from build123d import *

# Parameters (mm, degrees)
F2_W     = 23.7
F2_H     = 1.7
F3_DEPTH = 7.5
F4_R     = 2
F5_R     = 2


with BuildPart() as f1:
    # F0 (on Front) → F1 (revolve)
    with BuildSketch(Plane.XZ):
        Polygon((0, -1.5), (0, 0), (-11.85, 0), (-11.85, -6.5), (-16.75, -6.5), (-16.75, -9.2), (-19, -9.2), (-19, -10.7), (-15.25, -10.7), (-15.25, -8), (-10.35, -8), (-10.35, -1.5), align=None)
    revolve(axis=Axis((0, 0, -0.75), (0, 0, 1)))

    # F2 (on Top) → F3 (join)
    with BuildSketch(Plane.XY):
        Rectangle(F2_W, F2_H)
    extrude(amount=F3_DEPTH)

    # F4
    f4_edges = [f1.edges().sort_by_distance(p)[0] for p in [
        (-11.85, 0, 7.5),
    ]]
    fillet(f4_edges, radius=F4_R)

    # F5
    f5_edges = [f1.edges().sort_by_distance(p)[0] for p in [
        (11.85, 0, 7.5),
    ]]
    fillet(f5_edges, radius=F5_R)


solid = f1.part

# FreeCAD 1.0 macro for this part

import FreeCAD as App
import Part
import Sketcher
from FreeCAD import Vector
Q = App.Units.Quantity


def edges_at(feature, points):
    """Names of the edges that pass closest to the given points."""
    edges = feature.Shape.Edges
    near = lambda p: min(range(len(edges)), key=lambda i: edges[i].distToShape(Part.Vertex(*p))[0])
    return sorted({f"Edge{near(p) + 1}" for p in points})


def add_polygon(sketch, points):
    """Adds a closed chain of lines whose ends are joined by coincident constraints."""
    first, n = sketch.GeometryCount, len(points)
    for a, b in zip(points, points[1:] + points[:1]):
        sketch.addGeometry(Part.LineSegment(App.Vector(*a, 0), App.Vector(*b, 0)), False)
    for i in range(n):
        sketch.addConstraint(Sketcher.Constraint("Coincident", first + i, 2, first + (i + 1) % n, 1))

doc = App.newDocument("Part")
params = doc.addObject("Spreadsheet::Sheet", "Params")
for row, (alias, value) in enumerate([
    ("sketch1_width", "4.9 mm"),
    ("sketch1_height", "1.5 mm"),
    ("sketch1_height2", "6.5 mm"),
    ("sketch1_height3", "2.7 mm"),
    ("sketch1_width2", "11.85 mm"),
    ("revolution_angle", "360 deg"),
    ("sketch2_width", "23.7 mm"),
    ("sketch2_height", "1.7 mm"),
    ("pad1_length", "7.5 mm"),
    ("fillet_radius", "2 mm"),
    ("fillet2_radius", "2 mm"),
], start=1):
    params.set(f"A{row}", alias)
    params.set(f"B{row}", "=" + value)
    params.setAlias(f"B{row}", alias)

body = doc.addObject("PartDesign::Body", "Body")

# Sketch on XZ plane
sketch1 = body.newObject("Sketcher::SketchObject", "Sketch")
sketch1.AttachmentSupport = (doc.getObject("XZ_Plane"), [""])
sketch1.MapMode = "FlatFace"
add_polygon(sketch1, [(0, -1.5), (0, 0), (-11.8, 0), (-11.8, -6.5), (-16.8, -6.5), (-16.8, -9.2), (-19, -9.2), (-19, -10.7), (-15.2, -10.7), (-15.2, -8), (-10.3, -8), (-10.3, -1.5)])  # lines 0-11
sketch1.addConstraint([
    Sketcher.Constraint("Vertical", 0),
    Sketcher.Constraint("Horizontal", 1),
    Sketcher.Constraint("Vertical", 2),
    Sketcher.Constraint("Horizontal", 3),
    Sketcher.Constraint("Vertical", 4),
    Sketcher.Constraint("Horizontal", 5),
    Sketcher.Constraint("Vertical", 6),
    Sketcher.Constraint("Horizontal", 7),
    Sketcher.Constraint("Vertical", 8),
    Sketcher.Constraint("Horizontal", 9),
    Sketcher.Constraint("Vertical", 10),
    Sketcher.Constraint("Horizontal", 11),
    Sketcher.Constraint("Coincident", 0, 2, -1, 1),
    Sketcher.Constraint("Equal", 3, 9),
    Sketcher.Constraint("Equal", 0, 6),
    Sketcher.Constraint("Equal", 4, 8),
    Sketcher.Constraint("DistanceX", 3, 2, 3, 1, Q("4.9 mm")),
    Sketcher.Constraint("DistanceY", 0, 1, 0, 2, Q("1.5 mm")),
    Sketcher.Constraint("DistanceY", 2, 2, 2, 1, Q("6.5 mm")),
    Sketcher.Constraint("DistanceY", 4, 2, 4, 1, Q("2.7 mm")),
    Sketcher.Constraint("DistanceX", 5, 2, -1, 1, Q("19 mm")),
    Sketcher.Constraint("DistanceX", 1, 2, 1, 1, Q("11.85 mm")),
    Sketcher.Constraint("DistanceX", 7, 1, 7, 2, Q("3.75 mm")),
])
sketch1.setExpression("Constraints[28]", "Params.sketch1_width")
sketch1.setExpression("Constraints[29]", "Params.sketch1_height")
sketch1.setExpression("Constraints[30]", "Params.sketch1_height2")
sketch1.setExpression("Constraints[31]", "Params.sketch1_height3")
sketch1.setExpression("Constraints[33]", "Params.sketch1_width2")
revolution = body.newObject("PartDesign::Revolution", "Revolution")
revolution.Profile = sketch1
revolution.ReferenceAxis = (sketch1, ["V_Axis"])
revolution.setExpression("Angle", "Params.revolution_angle")

# Sketch on XY plane
sketch2 = body.newObject("Sketcher::SketchObject", "Sketch001")
sketch2.AttachmentSupport = (doc.getObject("XY_Plane"), [""])
sketch2.MapMode = "FlatFace"
add_polygon(sketch2, [(-11.8, 0.8), (-11.8, -0.8), (11.8, -0.8), (11.8, 0.8)])  # lines 0-3
sketch2.addConstraint([
    Sketcher.Constraint("Vertical", 0),
    Sketcher.Constraint("Horizontal", 1),
    Sketcher.Constraint("Vertical", 2),
    Sketcher.Constraint("Horizontal", 3),
    Sketcher.Constraint("Symmetric", 0, 2, 2, 2, -1, 1),
    Sketcher.Constraint("DistanceX", 1, 1, 1, 2, Q("23.7 mm")),
    Sketcher.Constraint("DistanceY", 0, 2, 0, 1, Q("1.7 mm")),
])
sketch2.setExpression("Constraints[9]", "Params.sketch2_width")
sketch2.setExpression("Constraints[10]", "Params.sketch2_height")
pad1 = body.newObject("PartDesign::Pad", "Pad")
pad1.Profile = sketch2
pad1.setExpression("Length", "Params.pad1_length")
doc.recompute()

fillet = body.newObject("PartDesign::Fillet", "Fillet")
fillet.Base = (pad1, edges_at(pad1, [(-11.85, 0, 7.5)]))
fillet.setExpression("Radius", "Params.fillet_radius")
doc.recompute()

fillet2 = body.newObject("PartDesign::Fillet", "Fillet001")
fillet2.Base = (fillet, edges_at(fillet, [(11.85, 0, 7.5)]))
fillet2.setExpression("Radius", "Params.fillet2_radius")

doc.recompute()
